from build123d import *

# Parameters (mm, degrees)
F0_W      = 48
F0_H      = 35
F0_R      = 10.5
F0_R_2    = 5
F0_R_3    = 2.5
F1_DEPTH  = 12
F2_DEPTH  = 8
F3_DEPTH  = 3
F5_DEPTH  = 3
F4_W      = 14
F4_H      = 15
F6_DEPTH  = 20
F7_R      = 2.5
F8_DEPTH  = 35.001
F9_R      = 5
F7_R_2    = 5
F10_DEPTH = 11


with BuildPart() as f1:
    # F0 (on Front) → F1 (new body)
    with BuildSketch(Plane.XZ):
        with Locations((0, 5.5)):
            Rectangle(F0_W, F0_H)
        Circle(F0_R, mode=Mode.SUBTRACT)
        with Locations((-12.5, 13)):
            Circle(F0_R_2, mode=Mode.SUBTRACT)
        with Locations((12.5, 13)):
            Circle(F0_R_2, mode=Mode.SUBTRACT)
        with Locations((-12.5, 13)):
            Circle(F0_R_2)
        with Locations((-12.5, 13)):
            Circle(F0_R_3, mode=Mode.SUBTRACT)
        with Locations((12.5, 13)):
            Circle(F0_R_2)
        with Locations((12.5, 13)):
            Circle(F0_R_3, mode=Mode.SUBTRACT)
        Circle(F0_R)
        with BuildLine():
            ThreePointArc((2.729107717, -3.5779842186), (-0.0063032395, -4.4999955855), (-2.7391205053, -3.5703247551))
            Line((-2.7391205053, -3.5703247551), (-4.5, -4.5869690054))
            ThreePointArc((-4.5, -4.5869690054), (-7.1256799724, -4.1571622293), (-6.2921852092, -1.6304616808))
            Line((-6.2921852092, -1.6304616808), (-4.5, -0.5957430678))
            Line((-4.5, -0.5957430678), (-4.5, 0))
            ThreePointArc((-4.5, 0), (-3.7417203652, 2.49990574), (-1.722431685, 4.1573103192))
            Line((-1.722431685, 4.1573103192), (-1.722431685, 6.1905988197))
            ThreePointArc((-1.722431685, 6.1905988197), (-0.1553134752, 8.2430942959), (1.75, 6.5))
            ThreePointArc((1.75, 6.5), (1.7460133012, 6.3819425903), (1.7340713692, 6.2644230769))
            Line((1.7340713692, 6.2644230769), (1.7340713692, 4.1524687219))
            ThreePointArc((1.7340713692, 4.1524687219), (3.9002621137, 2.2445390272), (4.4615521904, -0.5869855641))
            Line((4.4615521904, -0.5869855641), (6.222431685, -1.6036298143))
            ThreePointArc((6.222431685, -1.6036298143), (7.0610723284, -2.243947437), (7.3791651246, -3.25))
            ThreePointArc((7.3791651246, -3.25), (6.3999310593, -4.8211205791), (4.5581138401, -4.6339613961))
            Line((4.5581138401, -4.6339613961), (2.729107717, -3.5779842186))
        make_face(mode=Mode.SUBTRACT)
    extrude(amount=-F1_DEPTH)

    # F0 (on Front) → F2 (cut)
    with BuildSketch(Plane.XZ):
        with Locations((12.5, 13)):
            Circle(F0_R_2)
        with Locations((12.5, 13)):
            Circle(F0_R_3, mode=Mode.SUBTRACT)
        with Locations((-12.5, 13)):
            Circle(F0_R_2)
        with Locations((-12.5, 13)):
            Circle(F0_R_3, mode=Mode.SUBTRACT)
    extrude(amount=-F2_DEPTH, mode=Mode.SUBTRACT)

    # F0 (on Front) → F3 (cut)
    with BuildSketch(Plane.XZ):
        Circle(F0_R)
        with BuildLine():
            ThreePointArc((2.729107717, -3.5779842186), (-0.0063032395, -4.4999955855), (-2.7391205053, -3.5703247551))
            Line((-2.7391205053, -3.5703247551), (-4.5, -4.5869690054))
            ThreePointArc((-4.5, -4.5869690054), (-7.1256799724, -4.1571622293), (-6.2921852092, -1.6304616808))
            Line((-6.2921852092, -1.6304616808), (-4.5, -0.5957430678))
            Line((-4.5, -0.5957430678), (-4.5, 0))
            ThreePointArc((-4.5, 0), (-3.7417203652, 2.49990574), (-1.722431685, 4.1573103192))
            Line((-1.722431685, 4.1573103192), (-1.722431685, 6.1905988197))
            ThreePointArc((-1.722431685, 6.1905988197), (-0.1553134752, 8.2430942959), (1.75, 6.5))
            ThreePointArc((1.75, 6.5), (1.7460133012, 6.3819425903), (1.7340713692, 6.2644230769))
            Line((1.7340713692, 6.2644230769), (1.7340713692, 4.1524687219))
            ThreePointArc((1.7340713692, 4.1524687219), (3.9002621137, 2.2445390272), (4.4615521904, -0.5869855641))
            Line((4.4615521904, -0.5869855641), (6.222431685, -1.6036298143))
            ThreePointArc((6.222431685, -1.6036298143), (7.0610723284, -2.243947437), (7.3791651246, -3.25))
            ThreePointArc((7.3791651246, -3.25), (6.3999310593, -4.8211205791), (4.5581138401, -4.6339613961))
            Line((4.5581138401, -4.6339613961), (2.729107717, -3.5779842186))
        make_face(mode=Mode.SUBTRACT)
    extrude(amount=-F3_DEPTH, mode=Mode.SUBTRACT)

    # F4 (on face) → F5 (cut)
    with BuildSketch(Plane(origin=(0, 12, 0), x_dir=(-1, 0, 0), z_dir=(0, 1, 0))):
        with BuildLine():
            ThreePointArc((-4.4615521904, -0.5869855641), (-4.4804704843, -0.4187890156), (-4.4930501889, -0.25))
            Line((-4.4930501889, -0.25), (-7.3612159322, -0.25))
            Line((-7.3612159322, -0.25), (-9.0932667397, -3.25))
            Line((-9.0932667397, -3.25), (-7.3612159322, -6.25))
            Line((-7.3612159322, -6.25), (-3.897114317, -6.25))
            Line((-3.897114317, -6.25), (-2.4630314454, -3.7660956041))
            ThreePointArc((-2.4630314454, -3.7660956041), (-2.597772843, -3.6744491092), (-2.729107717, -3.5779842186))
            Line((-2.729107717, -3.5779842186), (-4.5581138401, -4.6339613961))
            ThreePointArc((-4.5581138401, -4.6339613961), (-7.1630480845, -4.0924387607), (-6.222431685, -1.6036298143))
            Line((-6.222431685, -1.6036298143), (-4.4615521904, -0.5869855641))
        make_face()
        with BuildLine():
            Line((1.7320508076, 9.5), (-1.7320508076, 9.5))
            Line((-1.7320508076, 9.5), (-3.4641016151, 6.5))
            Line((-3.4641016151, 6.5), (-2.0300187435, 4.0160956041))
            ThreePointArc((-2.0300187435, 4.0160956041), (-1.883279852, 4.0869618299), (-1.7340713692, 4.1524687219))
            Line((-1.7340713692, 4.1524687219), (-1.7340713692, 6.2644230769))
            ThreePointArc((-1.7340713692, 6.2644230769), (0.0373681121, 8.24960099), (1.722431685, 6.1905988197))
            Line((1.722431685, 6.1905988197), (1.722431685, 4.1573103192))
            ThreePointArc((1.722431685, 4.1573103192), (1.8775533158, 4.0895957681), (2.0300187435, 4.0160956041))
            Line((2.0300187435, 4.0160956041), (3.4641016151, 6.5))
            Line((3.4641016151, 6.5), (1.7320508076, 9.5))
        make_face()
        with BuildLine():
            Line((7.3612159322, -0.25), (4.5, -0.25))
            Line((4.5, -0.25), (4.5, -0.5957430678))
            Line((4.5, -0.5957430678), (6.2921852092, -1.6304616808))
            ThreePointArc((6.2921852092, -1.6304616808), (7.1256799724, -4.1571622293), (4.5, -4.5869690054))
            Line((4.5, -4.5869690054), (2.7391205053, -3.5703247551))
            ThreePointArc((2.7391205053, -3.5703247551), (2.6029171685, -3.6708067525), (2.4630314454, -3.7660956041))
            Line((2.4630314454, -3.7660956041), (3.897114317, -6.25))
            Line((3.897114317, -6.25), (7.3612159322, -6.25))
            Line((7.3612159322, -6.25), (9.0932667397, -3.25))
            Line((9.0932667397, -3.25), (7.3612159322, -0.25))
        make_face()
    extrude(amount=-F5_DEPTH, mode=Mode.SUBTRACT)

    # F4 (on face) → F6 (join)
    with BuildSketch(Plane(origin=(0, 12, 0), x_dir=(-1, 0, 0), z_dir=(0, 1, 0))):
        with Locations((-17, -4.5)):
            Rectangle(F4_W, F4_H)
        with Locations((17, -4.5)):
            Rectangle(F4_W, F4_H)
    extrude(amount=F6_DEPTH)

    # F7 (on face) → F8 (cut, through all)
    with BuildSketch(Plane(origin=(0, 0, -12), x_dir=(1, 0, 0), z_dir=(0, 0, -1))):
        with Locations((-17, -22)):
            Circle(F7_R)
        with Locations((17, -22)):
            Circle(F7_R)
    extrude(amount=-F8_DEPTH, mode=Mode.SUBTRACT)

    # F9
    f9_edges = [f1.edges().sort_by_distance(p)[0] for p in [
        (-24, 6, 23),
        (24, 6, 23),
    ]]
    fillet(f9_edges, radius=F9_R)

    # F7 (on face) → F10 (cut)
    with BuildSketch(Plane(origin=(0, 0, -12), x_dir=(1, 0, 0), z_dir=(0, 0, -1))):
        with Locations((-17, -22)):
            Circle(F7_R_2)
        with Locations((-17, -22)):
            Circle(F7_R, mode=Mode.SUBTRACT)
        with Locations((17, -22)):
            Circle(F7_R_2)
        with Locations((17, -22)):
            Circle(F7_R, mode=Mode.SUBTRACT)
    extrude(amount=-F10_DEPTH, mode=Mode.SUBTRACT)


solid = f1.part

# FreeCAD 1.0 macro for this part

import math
import FreeCAD as App
import Part
import Sketcher
from FreeCAD import Vector
Q = App.Units.Quantity


def edges_at(feature, points):
    """Names of the edges that pass closest to the given points."""
    edges = feature.Shape.Edges
    near = lambda p: min(range(len(edges)), key=lambda i: edges[i].distToShape(Part.Vertex(*p))[0])
    return sorted({f"Edge{near(p) + 1}" for p in points})

doc = App.newDocument("Part")
body = doc.addObject("PartDesign::Body", "Body")

# Sketch on XZ plane
sketch1 = doc.addObject("Sketcher::SketchObject", "Sketch")
body.addObject(sketch1)
sketch1.AttachmentSupport = (doc.XZ_Plane, [""])
sketch1.MapMode = "FlatFace"
sketch1.addGeometry([
    Part.LineSegment(Vector(-24, 23, 0), Vector(-24, -12, 0)),  # 0
    Part.LineSegment(Vector(-24, -12, 0), Vector(24, -12, 0)),  # 1
    Part.LineSegment(Vector(24, -12, 0), Vector(24, 23, 0)),  # 2
    Part.LineSegment(Vector(24, 23, 0), Vector(-24, 23, 0)),  # 3
    Part.LineSegment(Vector(4.56, -4.63, 0), Vector(2.73, -3.58, 0)),  # 4
    Part.ArcOfCircle(Part.Circle(Vector(0, 0, 0), Vector(0, 0, 1), 4.5), math.radians(-127), math.radians(-53)),  # 5
    Part.LineSegment(Vector(-2.74, -3.57, 0), Vector(-4.5, -4.59, 0)),  # 6
    Part.ArcOfCircle(Part.Circle(Vector(-5.63, -3.25, 0), Vector(0, 0, 1), 1.75), math.radians(112), math.radians(310)),  # 7
    Part.LineSegment(Vector(-6.29, -1.63, 0), Vector(-4.5, -0.6, 0)),  # 8
    Part.LineSegment(Vector(-4.5, -0.6, 0), Vector(-4.5, 0, 0)),  # 9
    Part.ArcOfCircle(Part.Circle(Vector(0, 0, 0), Vector(0, 0, 1), 4.5), math.radians(113), math.radians(180)),  # 10
    Part.LineSegment(Vector(-1.72, 4.16, 0), Vector(-1.72, 6.19, 0)),  # 11
    Part.ArcOfCircle(Part.Circle(Vector(0, 6.5, 0), Vector(0, 0, 1), 1.75), math.radians(0), math.radians(190)),  # 12
    Part.ArcOfCircle(Part.Circle(Vector(0, 6.5, 0), Vector(0, 0, 1), 1.75), math.radians(-7.74), math.radians(0)),  # 13
    Part.LineSegment(Vector(1.73, 6.26, 0), Vector(1.73, 4.15, 0)),  # 14
    Part.ArcOfCircle(Part.Circle(Vector(0, 0, 0), Vector(0, 0, 1), 4.5), math.radians(-7), math.radians(67)),  # 15
    Part.LineSegment(Vector(4.46, -0.59, 0), Vector(6.22, -1.6, 0)),  # 16
    Part.ArcOfCircle(Part.Circle(Vector(5.63, -3.25, 0), Vector(0, 0, 1), 1.75), math.radians(0), math.radians(70)),  # 17
    Part.ArcOfCircle(Part.Circle(Vector(5.63, -3.25, 0), Vector(0, 0, 1), 1.75), math.radians(-128), math.radians(0)),  # 18
    Part.Circle(Vector(-12.5, 13, 0), Vector(0, 0, 1), 2.5),  # 19
    Part.Circle(Vector(12.5, 13, 0), Vector(0, 0, 1), 2.5),  # 20
], False)
sketch1.addConstraint([
    Sketcher.Constraint("Coincident", 0, 2, 1, 1),
    Sketcher.Constraint("Coincident", 1, 2, 2, 1),
    Sketcher.Constraint("Coincident", 2, 2, 3, 1),
    Sketcher.Constraint("Coincident", 3, 2, 0, 1),
    Sketcher.Constraint("Coincident", 4, 2, 5, 2),
    Sketcher.Constraint("Coincident", 5, 1, 6, 1),
    Sketcher.Constraint("Coincident", 6, 2, 7, 2),
    Sketcher.Constraint("Coincident", 7, 1, 8, 1),
    Sketcher.Constraint("Coincident", 8, 2, 9, 1),
    Sketcher.Constraint("Tangent", 9, 2, 10, 2),
    Sketcher.Constraint("Coincident", 10, 1, 11, 1),
    Sketcher.Constraint("Coincident", 11, 2, 12, 2),
    Sketcher.Constraint("Tangent", 12, 1, 13, 2),
    Sketcher.Constraint("Coincident", 13, 1, 14, 1),
    Sketcher.Constraint("Coincident", 14, 2, 15, 2),
    Sketcher.Constraint("Coincident", 15, 1, 16, 1),
    Sketcher.Constraint("Coincident", 16, 2, 17, 2),
    Sketcher.Constraint("Tangent", 17, 1, 18, 2),
    Sketcher.Constraint("Coincident", 18, 1, 4, 1),
    Sketcher.Constraint("Vertical", 0),
    Sketcher.Constraint("Horizontal", 1),
    Sketcher.Constraint("Vertical", 2),
    Sketcher.Constraint("Horizontal", 3),
    Sketcher.Constraint("Vertical", 9),
    Sketcher.Constraint("Vertical", 11),
    Sketcher.Constraint("Vertical", 14),
    Sketcher.Constraint("Coincident", 5, 3, -1, 1),
    Sketcher.Constraint("Coincident", 10, 3, -1, 1),
    Sketcher.Constraint("Coincident", 15, 3, -1, 1),
    Sketcher.Constraint("Equal", 5, 10),
    Sketcher.Constraint("Equal", 7, 12),
    Sketcher.Constraint("Equal", 12, 13),
    Sketcher.Constraint("Equal", 10, 15),
    Sketcher.Constraint("Equal", 13, 17),
    Sketcher.Constraint("Equal", 17, 18),
    Sketcher.Constraint("Equal", 19, 20),
    Sketcher.Constraint("Symmetric", 7, 3, 17, 3, -2),
    Sketcher.Constraint("Symmetric", 19, 3, 20, 3, -2),
    Sketcher.Constraint("PointOnObject", 12, 3, -2),
    Sketcher.Constraint("Parallel", 6, 8),
    Sketcher.Constraint("Parallel", 4, 16),
    Sketcher.Constraint("Horizontal", 13, 3, 12, 1),
    Sketcher.Constraint("Horizontal", 18, 3, 17, 1),
    Sketcher.Constraint("Vertical", 6, 2, 8, 2),
    Sketcher.Constraint("Equal", 6, 16),
    Sketcher.Constraint("Diameter", 19, Q("5 mm")),
    Sketcher.Constraint("Radius", 5, Q("4.5 mm")),
    Sketcher.Constraint("DistanceX", 1, 1, 1, 2, Q("48 mm")),
    Sketcher.Constraint("DistanceY", 0, 2, 0, 1, Q("35 mm")),
    Sketcher.Constraint("Angle", 4, Q("150 deg")),
    Sketcher.Constraint("Angle", 6, Q("-150 deg")),
    Sketcher.Constraint("Radius", 7, Q("1.75 mm")),
    Sketcher.Constraint("DistanceY", -1, 1, 19, 3, Q("13 mm")),
    Sketcher.Constraint("DistanceX", 0, 2, -1, 1, Q("24 mm")),
    Sketcher.Constraint("DistanceY", 0, 2, -1, 1, Q("12 mm")),
    Sketcher.Constraint("DistanceY", -1, 1, 12, 3, Q("6.5 mm")),
    Sketcher.Constraint("DistanceX", 19, 3, -1, 1, Q("12.5 mm")),
    Sketcher.Constraint("DistanceY", 7, 3, -1, 1, Q("3.25 mm")),
    Sketcher.Constraint("DistanceY", 4, 2, 15, 1, Q("2.990999 mm")),
    Sketcher.Constraint("DistanceY", 11, 1, 11, 2, Q("2.033289 mm")),
    Sketcher.Constraint("Distance", 6, Q("2.033289 mm")),
    Sketcher.Constraint("DistanceY", 9, 1, 9, 2, Q("0.595743 mm")),
    Sketcher.Constraint("DistanceY", 14, 2, 14, 1, Q("2.111954 mm")),
])
pad1 = doc.addObject("PartDesign::Pad", "Pad")
body.addObject(pad1)
pad1.Profile = sketch1
pad1.Length = 12
pad1.Reversed = True

# Sketch on XZ plane
sketch2 = doc.addObject("Sketcher::SketchObject", "Sketch001")
body.addObject(sketch2)
sketch2.AttachmentSupport = (doc.XZ_Plane, [""])
sketch2.MapMode = "FlatFace"
sketch2.addGeometry([
    Part.Circle(Vector(12.5, 13, 0), Vector(0, 0, 1), 5),
    Part.Circle(Vector(12.5, 13, 0), Vector(0, 0, 1), 2.5),
    Part.Circle(Vector(-12.5, 13, 0), Vector(0, 0, 1), 5),
    Part.Circle(Vector(-12.5, 13, 0), Vector(0, 0, 1), 2.5),
], False)
sketch2.addConstraint([
    Sketcher.Constraint("Coincident", 1, 3, 0, 3),
    Sketcher.Constraint("Coincident", 3, 3, 2, 3),
    Sketcher.Constraint("Equal", 0, 2),
    Sketcher.Constraint("Equal", 1, 3),
    Sketcher.Constraint("Symmetric", 0, 3, 2, 3, -2),
    Sketcher.Constraint("Diameter", 0, Q("10 mm")),
    Sketcher.Constraint("Diameter", 1, Q("5 mm")),
    Sketcher.Constraint("DistanceY", -1, 1, 0, 3, Q("13 mm")),
    Sketcher.Constraint("DistanceX", 2, 3, 0, 3, Q("25 mm")),
])
pocket1 = doc.addObject("PartDesign::Pocket", "Pocket")
body.addObject(pocket1)
pocket1.Profile = sketch2
pocket1.Length = 8

# Sketch on XZ plane
sketch3 = doc.addObject("Sketcher::SketchObject", "Sketch002")
body.addObject(sketch3)
sketch3.AttachmentSupport = (doc.XZ_Plane, [""])
sketch3.MapMode = "FlatFace"
sketch3.addGeometry([
    Part.Circle(Vector(0, 0, 0), Vector(0, 0, 1), 10.5),  # 0
    Part.LineSegment(Vector(4.56, -4.63, 0), Vector(2.73, -3.58, 0)),  # 1
    Part.ArcOfCircle(Part.Circle(Vector(0, 0, 0), Vector(0, 0, 1), 4.5), math.radians(-127), math.radians(-53)),  # 2
    Part.LineSegment(Vector(-2.74, -3.57, 0), Vector(-4.5, -4.59, 0)),  # 3
    Part.ArcOfCircle(Part.Circle(Vector(-5.63, -3.25, 0), Vector(0, 0, 1), 1.75), math.radians(112), math.radians(310)),  # 4
    Part.LineSegment(Vector(-6.29, -1.63, 0), Vector(-4.5, -0.6, 0)),  # 5
    Part.LineSegment(Vector(-4.5, -0.6, 0), Vector(-4.5, 0, 0)),  # 6
    Part.ArcOfCircle(Part.Circle(Vector(0, 0, 0), Vector(0, 0, 1), 4.5), math.radians(113), math.radians(180)),  # 7
    Part.LineSegment(Vector(-1.72, 4.16, 0), Vector(-1.72, 6.19, 0)),  # 8
    Part.ArcOfCircle(Part.Circle(Vector(0, 6.5, 0), Vector(0, 0, 1), 1.75), math.radians(0), math.radians(190)),  # 9
    Part.ArcOfCircle(Part.Circle(Vector(0, 6.5, 0), Vector(0, 0, 1), 1.75), math.radians(-7.74), math.radians(0)),  # 10
    Part.LineSegment(Vector(1.73, 6.26, 0), Vector(1.73, 4.15, 0)),  # 11
    Part.ArcOfCircle(Part.Circle(Vector(0, 0, 0), Vector(0, 0, 1), 4.5), math.radians(-7), math.radians(67)),  # 12
    Part.LineSegment(Vector(4.46, -0.59, 0), Vector(6.22, -1.6, 0)),  # 13
    Part.ArcOfCircle(Part.Circle(Vector(5.63, -3.25, 0), Vector(0, 0, 1), 1.75), math.radians(0), math.radians(70)),  # 14
    Part.ArcOfCircle(Part.Circle(Vector(5.63, -3.25, 0), Vector(0, 0, 1), 1.75), math.radians(-128), math.radians(0)),  # 15
], False)
sketch3.addConstraint([
    Sketcher.Constraint("Coincident", 1, 2, 2, 2),
    Sketcher.Constraint("Coincident", 2, 1, 3, 1),
    Sketcher.Constraint("Coincident", 3, 2, 4, 2),
    Sketcher.Constraint("Coincident", 4, 1, 5, 1),
    Sketcher.Constraint("Coincident", 5, 2, 6, 1),
    Sketcher.Constraint("Tangent", 6, 2, 7, 2),
    Sketcher.Constraint("Coincident", 7, 1, 8, 1),
    Sketcher.Constraint("Coincident", 8, 2, 9, 2),
    Sketcher.Constraint("Tangent", 9, 1, 10, 2),
    Sketcher.Constraint("Coincident", 10, 1, 11, 1),
    Sketcher.Constraint("Coincident", 11, 2, 12, 2),
    Sketcher.Constraint("Coincident", 12, 1, 13, 1),
    Sketcher.Constraint("Coincident", 13, 2, 14, 2),
    Sketcher.Constraint("Tangent", 14, 1, 15, 2),
    Sketcher.Constraint("Coincident", 15, 1, 1, 1),
    Sketcher.Constraint("Vertical", 6),
    Sketcher.Constraint("Vertical", 8),
    Sketcher.Constraint("Vertical", 11),
    Sketcher.Constraint("Coincident", 0, 3, -1, 1),
    Sketcher.Constraint("Coincident", 2, 3, -1, 1),
    Sketcher.Constraint("Coincident", 7, 3, -1, 1),
    Sketcher.Constraint("Coincident", 12, 3, -1, 1),
    Sketcher.Constraint("Equal", 2, 7),
    Sketcher.Constraint("Equal", 4, 9),
    Sketcher.Constraint("Equal", 9, 10),
    Sketcher.Constraint("Equal", 7, 12),
    Sketcher.Constraint("Equal", 10, 14),
    Sketcher.Constraint("Equal", 14, 15),
    Sketcher.Constraint("Symmetric", 4, 3, 14, 3, -2),
    Sketcher.Constraint("PointOnObject", 9, 3, -2),
    Sketcher.Constraint("Parallel", 3, 5),
    Sketcher.Constraint("Parallel", 1, 13),
    Sketcher.Constraint("Horizontal", 10, 3, 9, 1),
    Sketcher.Constraint("Horizontal", 15, 3, 14, 1),
    Sketcher.Constraint("Vertical", 3, 2, 5, 2),
    Sketcher.Constraint("Equal", 3, 13),
    Sketcher.Constraint("Diameter", 0, Q("21 mm")),
    Sketcher.Constraint("Radius", 2, Q("4.5 mm")),
    Sketcher.Constraint("Angle", 1, Q("150 deg")),
    Sketcher.Constraint("Angle", 3, Q("-150 deg")),
    Sketcher.Constraint("Radius", 4, Q("1.75 mm")),
    Sketcher.Constraint("DistanceY", -1, 1, 9, 3, Q("6.5 mm")),
    Sketcher.Constraint("DistanceY", 4, 3, -1, 1, Q("3.25 mm")),
    Sketcher.Constraint("DistanceY", 1, 2, 12, 1, Q("2.990999 mm")),
    Sketcher.Constraint("DistanceY", 8, 1, 8, 2, Q("2.033289 mm")),
    Sketcher.Constraint("Distance", 3, Q("2.033289 mm")),
    Sketcher.Constraint("DistanceY", 6, 1, 6, 2, Q("0.595743 mm")),
    Sketcher.Constraint("DistanceY", 11, 2, 11, 1, Q("2.111954 mm")),
])
pocket2 = doc.addObject("PartDesign::Pocket", "Pocket001")
body.addObject(pocket2)
pocket2.Profile = sketch3
pocket2.Length = 3

# Sketch on XZ plane
sketch4 = doc.addObject("Sketcher::SketchObject", "Sketch003")
body.addObject(sketch4)
sketch4.AttachmentSupport = (doc.XZ_Plane, [""])
sketch4.MapMode = "FlatFace"
sketch4.AttachmentOffset = App.Placement(Vector(0, 0, -12), App.Rotation())
sketch4.addGeometry([
    Part.ArcOfCircle(Part.Circle(Vector(0, 0, 0), Vector(0, 0, 1), 4.5), math.radians(-7.5), math.radians(-3.18)),  # 0
    Part.LineSegment(Vector(4.49, -0.25, 0), Vector(7.36, -0.25, 0)),  # 1
    Part.LineSegment(Vector(7.36, -0.25, 0), Vector(9.09, -3.25, 0)),  # 2
    Part.LineSegment(Vector(9.09, -3.25, 0), Vector(7.36, -6.25, 0)),  # 3
    Part.LineSegment(Vector(7.36, -6.25, 0), Vector(3.9, -6.25, 0)),  # 4
    Part.LineSegment(Vector(3.9, -6.25, 0), Vector(2.46, -3.77, 0)),  # 5
    Part.ArcOfCircle(Part.Circle(Vector(0, 0, 0), Vector(0, 0, 1), 4.5), math.radians(-56.82), math.radians(-52.67)),  # 6
    Part.LineSegment(Vector(2.73, -3.58, 0), Vector(4.56, -4.63, 0)),  # 7
    Part.ArcOfCircle(Part.Circle(Vector(5.63, -3.25, 0), Vector(0, 0, 1), 1.75), math.radians(-128), math.radians(70)),  # 8
    Part.LineSegment(Vector(6.22, -1.6, 0), Vector(4.46, -0.59, 0)),  # 9
    Part.LineSegment(Vector(-1.73, 9.5, 0), Vector(1.73, 9.5, 0)),  # 10
    Part.LineSegment(Vector(1.73, 9.5, 0), Vector(3.46, 6.5, 0)),  # 11
    Part.LineSegment(Vector(3.46, 6.5, 0), Vector(2.03, 4.02, 0)),  # 12
    Part.ArcOfCircle(Part.Circle(Vector(0, 0, 0), Vector(0, 0, 1), 4.5), math.radians(63.18), math.radians(67.33)),  # 13
    Part.LineSegment(Vector(1.73, 4.15, 0), Vector(1.73, 6.26, 0)),  # 14
    Part.ArcOfCircle(Part.Circle(Vector(0, 6.5, 0), Vector(0, 0, 1), 1.75), math.radians(-8), math.radians(190)),  # 15
    Part.LineSegment(Vector(-1.72, 6.19, 0), Vector(-1.72, 4.16, 0)),  # 16
    Part.ArcOfCircle(Part.Circle(Vector(0, 0, 0), Vector(0, 0, 1), 4.5), math.radians(112.5), math.radians(116.82)),  # 17
    Part.LineSegment(Vector(-2.03, 4.02, 0), Vector(-3.46, 6.5, 0)),  # 18
    Part.LineSegment(Vector(-3.46, 6.5, 0), Vector(-1.73, 9.5, 0)),  # 19
    Part.LineSegment(Vector(-7.36, -0.25, 0), Vector(-4.5, -0.25, 0)),  # 20
    Part.LineSegment(Vector(-4.5, -0.25, 0), Vector(-4.5, -0.6, 0)),  # 21
    Part.LineSegment(Vector(-4.5, -0.6, 0), Vector(-6.29, -1.63, 0)),  # 22
    Part.ArcOfCircle(Part.Circle(Vector(-5.63, -3.25, 0), Vector(0, 0, 1), 1.75), math.radians(112), math.radians(310)),  # 23
    Part.LineSegment(Vector(-4.5, -4.59, 0), Vector(-2.74, -3.57, 0)),  # 24
    Part.ArcOfCircle(Part.Circle(Vector(0, 0, 0), Vector(0, 0, 1), 4.5), math.radians(-127.5), math.radians(-123.18)),  # 25
    Part.LineSegment(Vector(-2.46, -3.77, 0), Vector(-3.9, -6.25, 0)),  # 26
    Part.LineSegment(Vector(-3.9, -6.25, 0), Vector(-7.36, -6.25, 0)),  # 27
    Part.LineSegment(Vector(-7.36, -6.25, 0), Vector(-9.09, -3.25, 0)),  # 28
    Part.LineSegment(Vector(-9.09, -3.25, 0), Vector(-7.36, -0.25, 0)),  # 29
], False)
sketch4.addConstraint([
    Sketcher.Constraint("Coincident", 0, 2, 1, 1),
    Sketcher.Constraint("Coincident", 1, 2, 2, 1),
    Sketcher.Constraint("Coincident", 2, 2, 3, 1),
    Sketcher.Constraint("Coincident", 3, 2, 4, 1),
    Sketcher.Constraint("Coincident", 4, 2, 5, 1),
    Sketcher.Constraint("Coincident", 5, 2, 6, 1),
    Sketcher.Constraint("Coincident", 6, 2, 7, 1),
    Sketcher.Constraint("Coincident", 7, 2, 8, 1),
    Sketcher.Constraint("Coincident", 8, 2, 9, 1),
    Sketcher.Constraint("Coincident", 9, 2, 0, 1),
    Sketcher.Constraint("Coincident", 10, 2, 11, 1),
    Sketcher.Constraint("Coincident", 11, 2, 12, 1),
    Sketcher.Constraint("Coincident", 12, 2, 13, 1),
    Sketcher.Constraint("Coincident", 13, 2, 14, 1),
    Sketcher.Constraint("Coincident", 14, 2, 15, 1),
    Sketcher.Constraint("Coincident", 15, 2, 16, 1),
    Sketcher.Constraint("Coincident", 16, 2, 17, 1),
    Sketcher.Constraint("Coincident", 17, 2, 18, 1),
    Sketcher.Constraint("Coincident", 18, 2, 19, 1),
    Sketcher.Constraint("Coincident", 19, 2, 10, 1),
    Sketcher.Constraint("Coincident", 20, 2, 21, 1),
    Sketcher.Constraint("Coincident", 21, 2, 22, 1),
    Sketcher.Constraint("Coincident", 22, 2, 23, 1),
    Sketcher.Constraint("Coincident", 23, 2, 24, 1),
    Sketcher.Constraint("Coincident", 24, 2, 25, 1),
    Sketcher.Constraint("Coincident", 25, 2, 26, 1),
    Sketcher.Constraint("Coincident", 26, 2, 27, 1),
    Sketcher.Constraint("Coincident", 27, 2, 28, 1),
    Sketcher.Constraint("Coincident", 28, 2, 29, 1),
    Sketcher.Constraint("Coincident", 29, 2, 20, 1),
    Sketcher.Constraint("Horizontal", 1),
    Sketcher.Constraint("Horizontal", 4),
    Sketcher.Constraint("Horizontal", 10),
    Sketcher.Constraint("Vertical", 14),
    Sketcher.Constraint("Vertical", 16),
    Sketcher.Constraint("Horizontal", 20),
    Sketcher.Constraint("Vertical", 21),
    Sketcher.Constraint("Horizontal", 27),
    Sketcher.Constraint("Coincident", 0, 3, -1, 1),
    Sketcher.Constraint("Coincident", 6, 3, -1, 1),
    Sketcher.Constraint("Coincident", 13, 3, -1, 1),
    Sketcher.Constraint("Coincident", 17, 3, -1, 1),
    Sketcher.Constraint("Coincident", 25, 3, -1, 1),
    Sketcher.Constraint("Equal", 0, 6),
    Sketcher.Constraint("Equal", 6, 13),
    Sketcher.Constraint("Equal", 8, 15),
    Sketcher.Constraint("Equal", 13, 17),
    Sketcher.Constraint("Equal", 15, 23),
    Sketcher.Constraint("Equal", 17, 25),
    Sketcher.Constraint("Symmetric", 8, 3, 23, 3, -2),
    Sketcher.Constraint("Symmetric", 11, 2, 18, 2, -2),
    Sketcher.Constraint("Symmetric", 4, 2, 26, 2, -2),
    Sketcher.Constraint("Symmetric", 2, 2, 28, 2, -2),
    Sketcher.Constraint("Symmetric", 1, 2, 29, 2, -2),
    Sketcher.Constraint("PointOnObject", 15, 3, -2),
    Sketcher.Constraint("Parallel", 2, 5),
    Sketcher.Constraint("Perpendicular", 3, 7),
    Sketcher.Constraint("Parallel", 7, 9),
    Sketcher.Constraint("Parallel", 5, 11),
    Sketcher.Constraint("Perpendicular", 9, 12),
    Sketcher.Constraint("Parallel", 11, 18),
    Sketcher.Constraint("Parallel", 12, 19),
    Sketcher.Constraint("Perpendicular", 18, 22),
    Sketcher.Constraint("Parallel", 22, 24),
    Sketcher.Constraint("Parallel", 19, 26),
    Sketcher.Constraint("Perpendicular", 24, 28),
    Sketcher.Constraint("Parallel", 26, 29),
    Sketcher.Constraint("Horizontal", 23, 3, 2, 2),
    Sketcher.Constraint("Horizontal", 15, 3, 11, 2),
    Sketcher.Constraint("Vertical", 1, 2, 3, 2),
    Sketcher.Constraint("Vertical", 21, 2, 23, 2),
    Sketcher.Constraint("Equal", 4, 10),
    Sketcher.Constraint("Equal", 3, 11),
    Sketcher.Constraint("Equal", 5, 12),
    Sketcher.Constraint("Equal", 9, 24),
    Sketcher.Constraint("Radius", 0, Q("4.5 mm")),
    Sketcher.Constraint("Angle", 2, Q("-60 deg")),
    Sketcher.Constraint("Radius", 8, Q("1.75 mm")),
    Sketcher.Constraint("DistanceY", 8, 3, 0, 2, Q("3 mm")),
    Sketcher.Constraint("DistanceY", -1, 1, 15, 3, Q("6.5 mm")),
    Sketcher.Constraint("DistanceX", 20, 2, -1, 1, Q("4.5 mm")),
    Sketcher.Constraint("DistanceY", 8, 3, -1, 1, Q("3.25 mm")),
    Sketcher.Constraint("DistanceX", 4, 2, 4, 1, Q("3.464102 mm")),
    Sketcher.Constraint("DistanceX", 4, 2, 7, 2, Q("0.661 mm")),
    Sketcher.Constraint("DistanceY", 6, 2, 9, 2, Q("2.990999 mm")),
    Sketcher.Constraint("DistanceY", 16, 2, 16, 1, Q("2.033289 mm")),
    Sketcher.Constraint("DistanceY", 14, 1, 14, 2, Q("2.111954 mm")),
    Sketcher.Constraint("DistanceY", 21, 2, 21, 1, Q("0.345743 mm")),
])
pocket3 = doc.addObject("PartDesign::Pocket", "Pocket002")
body.addObject(pocket3)
pocket3.Profile = sketch4
pocket3.Length = 3
pocket3.Reversed = True

# Sketch on XZ plane
sketch5 = doc.addObject("Sketcher::SketchObject", "Sketch004")
body.addObject(sketch5)
sketch5.AttachmentSupport = (doc.XZ_Plane, [""])
sketch5.MapMode = "FlatFace"
sketch5.AttachmentOffset = App.Placement(Vector(0, 0, -12), App.Rotation())
sketch5.addGeometry([
    Part.LineSegment(Vector(24, 3, 0), Vector(24, -12, 0)),  # 0
    Part.LineSegment(Vector(24, -12, 0), Vector(10, -12, 0)),  # 1
    Part.LineSegment(Vector(10, -12, 0), Vector(10, 3, 0)),  # 2
    Part.LineSegment(Vector(10, 3, 0), Vector(24, 3, 0)),  # 3
    Part.LineSegment(Vector(-10, 3, 0), Vector(-10, -12, 0)),  # 4
    Part.LineSegment(Vector(-10, -12, 0), Vector(-24, -12, 0)),  # 5
    Part.LineSegment(Vector(-24, -12, 0), Vector(-24, 3, 0)),  # 6
    Part.LineSegment(Vector(-24, 3, 0), Vector(-10, 3, 0)),  # 7
], False)
sketch5.addConstraint([
    Sketcher.Constraint("Coincident", 0, 2, 1, 1),
    Sketcher.Constraint("Coincident", 1, 2, 2, 1),
    Sketcher.Constraint("Coincident", 2, 2, 3, 1),
    Sketcher.Constraint("Coincident", 3, 2, 0, 1),
    Sketcher.Constraint("Coincident", 4, 2, 5, 1),
    Sketcher.Constraint("Coincident", 5, 2, 6, 1),
    Sketcher.Constraint("Coincident", 6, 2, 7, 1),
    Sketcher.Constraint("Coincident", 7, 2, 4, 1),
    Sketcher.Constraint("Vertical", 0),
    Sketcher.Constraint("Horizontal", 1),
    Sketcher.Constraint("Vertical", 2),
    Sketcher.Constraint("Horizontal", 3),
    Sketcher.Constraint("Vertical", 4),
    Sketcher.Constraint("Horizontal", 5),
    Sketcher.Constraint("Vertical", 6),
    Sketcher.Constraint("Horizontal", 7),
    Sketcher.Constraint("Symmetric", 1, 2, 4, 2, -2),
    Sketcher.Constraint("Symmetric", 3, 2, 6, 2, -2),
    Sketcher.Constraint("DistanceX", 1, 2, 1, 1, Q("14 mm")),
    Sketcher.Constraint("DistanceY", 0, 2, 0, 1, Q("15 mm")),
    Sketcher.Constraint("DistanceX", -1, 1, 0, 2, Q("24 mm")),
    Sketcher.Constraint("DistanceY", 0, 2, -1, 1, Q("12 mm")),
])
pad2 = doc.addObject("PartDesign::Pad", "Pad001")
body.addObject(pad2)
pad2.Profile = sketch5
pad2.Length = 20
pad2.Reversed = True

# Sketch on XY plane
sketch6 = doc.addObject("Sketcher::SketchObject", "Sketch005")
body.addObject(sketch6)
sketch6.AttachmentSupport = (doc.XY_Plane, [""])
sketch6.MapMode = "FlatFace"
sketch6.AttachmentOffset = App.Placement(Vector(0, 0, -12), App.Rotation())
sketch6.addGeometry([
    Part.Circle(Vector(-17, 22, 0), Vector(0, 0, 1), 2.5),
    Part.Circle(Vector(17, 22, 0), Vector(0, 0, 1), 2.5),
], False)
sketch6.addConstraint([
    Sketcher.Constraint("Equal", 0, 1),
    Sketcher.Constraint("Symmetric", 0, 3, 1, 3, -2),
    Sketcher.Constraint("Diameter", 0, Q("5 mm")),
    Sketcher.Constraint("DistanceX", 0, 3, -1, 1, Q("17 mm")),
    Sketcher.Constraint("DistanceY", -1, 1, 0, 3, Q("22 mm")),
])
pocket4 = doc.addObject("PartDesign::Pocket", "Pocket003")
body.addObject(pocket4)
pocket4.Profile = sketch6
pocket4.Type = "ThroughAll"
pocket4.Reversed = True
doc.recompute()

fillet = doc.addObject("PartDesign::Fillet", "Fillet")
body.addObject(fillet)
fillet.Base = (pocket4, edges_at(pocket4, [(-24, 6, 23), (24, 6, 23)]))
fillet.Radius = 5

# Sketch on XY plane
sketch7 = doc.addObject("Sketcher::SketchObject", "Sketch006")
body.addObject(sketch7)
sketch7.AttachmentSupport = (doc.XY_Plane, [""])
sketch7.MapMode = "FlatFace"
sketch7.AttachmentOffset = App.Placement(Vector(0, 0, -12), App.Rotation())
sketch7.addGeometry([
    Part.Circle(Vector(-17, 22, 0), Vector(0, 0, 1), 5),
    Part.Circle(Vector(-17, 22, 0), Vector(0, 0, 1), 2.5),
    Part.Circle(Vector(17, 22, 0), Vector(0, 0, 1), 5),
    Part.Circle(Vector(17, 22, 0), Vector(0, 0, 1), 2.5),
], False)
sketch7.addConstraint([
    Sketcher.Constraint("Coincident", 1, 3, 0, 3),
    Sketcher.Constraint("Coincident", 3, 3, 2, 3),
    Sketcher.Constraint("Equal", 0, 2),
    Sketcher.Constraint("Equal", 1, 3),
    Sketcher.Constraint("Symmetric", 0, 3, 2, 3, -2),
    Sketcher.Constraint("Diameter", 0, Q("10 mm")),
    Sketcher.Constraint("Diameter", 1, Q("5 mm")),
    Sketcher.Constraint("DistanceX", 0, 3, -1, 1, Q("17 mm")),
    Sketcher.Constraint("DistanceY", -1, 1, 0, 3, Q("22 mm")),
])
pocket5 = doc.addObject("PartDesign::Pocket", "Pocket004")
body.addObject(pocket5)
pocket5.Profile = sketch7
pocket5.Length = 11
pocket5.Reversed = True

doc.recompute()
